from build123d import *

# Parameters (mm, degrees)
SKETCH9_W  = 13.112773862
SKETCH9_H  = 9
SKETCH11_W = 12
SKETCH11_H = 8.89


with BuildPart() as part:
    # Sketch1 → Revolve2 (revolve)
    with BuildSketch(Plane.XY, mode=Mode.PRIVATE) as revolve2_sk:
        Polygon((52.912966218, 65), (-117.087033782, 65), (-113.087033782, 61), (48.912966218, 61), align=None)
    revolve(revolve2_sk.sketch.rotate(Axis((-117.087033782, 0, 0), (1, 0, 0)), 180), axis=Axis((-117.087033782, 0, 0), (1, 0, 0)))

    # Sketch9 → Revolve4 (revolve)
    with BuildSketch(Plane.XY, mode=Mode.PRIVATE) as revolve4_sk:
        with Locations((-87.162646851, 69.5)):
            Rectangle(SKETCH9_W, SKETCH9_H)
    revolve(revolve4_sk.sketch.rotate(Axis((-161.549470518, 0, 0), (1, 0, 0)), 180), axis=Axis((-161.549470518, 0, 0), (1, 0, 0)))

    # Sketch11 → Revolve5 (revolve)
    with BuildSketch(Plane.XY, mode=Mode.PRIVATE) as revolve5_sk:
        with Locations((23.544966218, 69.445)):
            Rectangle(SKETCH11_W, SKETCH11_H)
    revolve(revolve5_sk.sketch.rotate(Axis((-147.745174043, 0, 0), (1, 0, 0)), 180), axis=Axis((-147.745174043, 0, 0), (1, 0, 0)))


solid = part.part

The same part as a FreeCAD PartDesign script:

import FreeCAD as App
import Part
import Sketcher

V = App.Vector
Q = App.Units.Quantity

doc = App.newDocument("Part")
params = doc.addObject("Spreadsheet::Sheet", "Params")
for row, (alias, value) in enumerate([
    ("sketch1_width", "170 mm"),
    ("sketch1_width2", "162 mm"),
    ("revolution_angle", "360 deg"),
    ("sketch2_height", "9 mm"),
    ("revolution2_angle", "360 deg"),
    ("sketch3_width", "12 mm"),
    ("sketch3_height", "8.89 mm"),
    ("revolution3_angle", "360 deg"),
], start=1):
    params.set(f"A{row}", alias)
    params.set(f"B{row}", "=" + value)
    params.setAlias(f"B{row}", alias)

body = doc.addObject("PartDesign::Body", "Body")

# Sketch on XY plane
sketch1 = body.newObject("Sketcher::SketchObject", "Sketch")
sketch1.AttachmentSupport = (doc.getObject("XY_Plane"), [""])
sketch1.MapMode = "FlatFace"
sketch1.addGeometry(Part.LineSegment(V(53, 65, 0), V(-117, 65, 0)), False)
sketch1.addGeometry(Part.LineSegment(V(-117, 65, 0), V(-113, 61, 0)), False)
sketch1.addGeometry(Part.LineSegment(V(-113, 61, 0), V(49, 61, 0)), False)
sketch1.addGeometry(Part.LineSegment(V(49, 61, 0), V(53, 65, 0)), False)
sketch1.addConstraint(Sketcher.Constraint("Coincident", 0, 2, 1, 1))
sketch1.addConstraint(Sketcher.Constraint("Coincident", 1, 2, 2, 1))
sketch1.addConstraint(Sketcher.Constraint("Coincident", 2, 2, 3, 1))
sketch1.addConstraint(Sketcher.Constraint("Coincident", 3, 2, 0, 1))
sketch1.addConstraint(Sketcher.Constraint("Horizontal", 0))
sketch1.addConstraint(Sketcher.Constraint("Horizontal", 2))
sketch1.addConstraint(Sketcher.Constraint("Perpendicular", 1, 3))
sketch1.addConstraint(Sketcher.Constraint("Equal", 1, 3))
sketch1.addConstraint(Sketcher.Constraint("DistanceX", 0, 2, 0, 1, Q("170 mm")))
sketch1.addConstraint(Sketcher.Constraint("DistanceX", 2, 1, 2, 2, Q("162 mm")))
sketch1.addConstraint(Sketcher.Constraint("DistanceY", -1, 1, 0, 2, Q("65 mm")))
sketch1.addConstraint(Sketcher.Constraint("DistanceX", 0, 2, -1, 1, Q("117.087034 mm")))
sketch1.setExpression("Constraints[8]", "Params.sketch1_width")
sketch1.setExpression("Constraints[9]", "Params.sketch1_width2")
revolution = body.newObject("PartDesign::Revolution", "Revolution")
revolution.Profile = sketch1
revolution.ReferenceAxis = (sketch1, ["H_Axis"])
revolution.setExpression("Angle", "Params.revolution_angle")

# Sketch on XY plane
sketch2 = body.newObject("Sketcher::SketchObject", "Sketch001")
sketch2.AttachmentSupport = (doc.getObject("XY_Plane"), [""])
sketch2.MapMode = "FlatFace"
sketch2.addGeometry(Part.LineSegment(V(-94, 74, 0), V(-94, 65, 0)), False)
sketch2.addGeometry(Part.LineSegment(V(-94, 65, 0), V(-81, 65, 0)), False)
sketch2.addGeometry(Part.LineSegment(V(-81, 65, 0), V(-81, 74, 0)), False)
sketch2.addGeometry(Part.LineSegment(V(-81, 74, 0), V(-94, 74, 0)), False)
sketch2.addConstraint(Sketcher.Constraint("Coincident", 0, 2, 1, 1))
sketch2.addConstraint(Sketcher.Constraint("Coincident", 1, 2, 2, 1))
sketch2.addConstraint(Sketcher.Constraint("Coincident", 2, 2, 3, 1))
sketch2.addConstraint(Sketcher.Constraint("Coincident", 3, 2, 0, 1))
sketch2.addConstraint(Sketcher.Constraint("Vertical", 0))
sketch2.addConstraint(Sketcher.Constraint("Horizontal", 1))
sketch2.addConstraint(Sketcher.Constraint("Vertical", 2))
sketch2.addConstraint(Sketcher.Constraint("Horizontal", 3))
sketch2.addConstraint(Sketcher.Constraint("DistanceY", 0, 2, 0, 1, Q("9 mm")))
sketch2.addConstraint(Sketcher.Constraint("DistanceY", -1, 1, 0, 2, Q("65 mm")))
sketch2.addConstraint(Sketcher.Constraint("DistanceX", 1, 1, 1, 2, Q("13.112774 mm")))
sketch2.addConstraint(Sketcher.Constraint("DistanceX", 1, 2, -1, 1, Q("80.60626 mm")))
sketch2.setExpression("Constraints[8]", "Params.sketch2_height")
revolution2 = body.newObject("PartDesign::Revolution", "Revolution001")
revolution2.Profile = sketch2
revolution2.ReferenceAxis = (sketch2, ["H_Axis"])
revolution2.setExpression("Angle", "Params.revolution2_angle")

# Sketch on XY plane
sketch3 = body.newObject("Sketcher::SketchObject", "Sketch002")
sketch3.AttachmentSupport = (doc.getObject("XY_Plane"), [""])
sketch3.MapMode = "FlatFace"
sketch3.addGeometry(Part.LineSegment(V(18, 74, 0), V(18, 65, 0)), False)
sketch3.addGeometry(Part.LineSegment(V(18, 65, 0), V(30, 65, 0)), False)
sketch3.addGeometry(Part.LineSegment(V(30, 65, 0), V(30, 74, 0)), False)
sketch3.addGeometry(Part.LineSegment(V(30, 74, 0), V(18, 74, 0)), False)
sketch3.addConstraint(Sketcher.Constraint("Coincident", 0, 2, 1, 1))
sketch3.addConstraint(Sketcher.Constraint("Coincident", 1, 2, 2, 1))
sketch3.addConstraint(Sketcher.Constraint("Coincident", 2, 2, 3, 1))
sketch3.addConstraint(Sketcher.Constraint("Coincident", 3, 2, 0, 1))
sketch3.addConstraint(Sketcher.Constraint("Vertical", 0))
sketch3.addConstraint(Sketcher.Constraint("Horizontal", 1))
sketch3.addConstraint(Sketcher.Constraint("Vertical", 2))
sketch3.addConstraint(Sketcher.Constraint("Horizontal", 3))
sketch3.addConstraint(Sketcher.Constraint("DistanceX", 1, 1, 1, 2, Q("12 mm")))
sketch3.addConstraint(Sketcher.Constraint("DistanceY", -1, 1, 0, 2, Q("65 mm")))
sketch3.addConstraint(Sketcher.Constraint("DistanceY", 0, 2, 0, 1, Q("8.89 mm")))
sketch3.addConstraint(Sketcher.Constraint("DistanceX", -1, 1, 0, 2, Q("17.544966 mm")))
sketch3.setExpression("Constraints[8]", "Params.sketch3_width")
sketch3.setExpression("Constraints[10]", "Params.sketch3_height")
revolution3 = body.newObject("PartDesign::Revolution", "Revolution002")
revolution3.Profile = sketch3
revolution3.ReferenceAxis = (sketch3, ["H_Axis"])
revolution3.setExpression("Angle", "Params.revolution3_angle")

doc.recompute()
